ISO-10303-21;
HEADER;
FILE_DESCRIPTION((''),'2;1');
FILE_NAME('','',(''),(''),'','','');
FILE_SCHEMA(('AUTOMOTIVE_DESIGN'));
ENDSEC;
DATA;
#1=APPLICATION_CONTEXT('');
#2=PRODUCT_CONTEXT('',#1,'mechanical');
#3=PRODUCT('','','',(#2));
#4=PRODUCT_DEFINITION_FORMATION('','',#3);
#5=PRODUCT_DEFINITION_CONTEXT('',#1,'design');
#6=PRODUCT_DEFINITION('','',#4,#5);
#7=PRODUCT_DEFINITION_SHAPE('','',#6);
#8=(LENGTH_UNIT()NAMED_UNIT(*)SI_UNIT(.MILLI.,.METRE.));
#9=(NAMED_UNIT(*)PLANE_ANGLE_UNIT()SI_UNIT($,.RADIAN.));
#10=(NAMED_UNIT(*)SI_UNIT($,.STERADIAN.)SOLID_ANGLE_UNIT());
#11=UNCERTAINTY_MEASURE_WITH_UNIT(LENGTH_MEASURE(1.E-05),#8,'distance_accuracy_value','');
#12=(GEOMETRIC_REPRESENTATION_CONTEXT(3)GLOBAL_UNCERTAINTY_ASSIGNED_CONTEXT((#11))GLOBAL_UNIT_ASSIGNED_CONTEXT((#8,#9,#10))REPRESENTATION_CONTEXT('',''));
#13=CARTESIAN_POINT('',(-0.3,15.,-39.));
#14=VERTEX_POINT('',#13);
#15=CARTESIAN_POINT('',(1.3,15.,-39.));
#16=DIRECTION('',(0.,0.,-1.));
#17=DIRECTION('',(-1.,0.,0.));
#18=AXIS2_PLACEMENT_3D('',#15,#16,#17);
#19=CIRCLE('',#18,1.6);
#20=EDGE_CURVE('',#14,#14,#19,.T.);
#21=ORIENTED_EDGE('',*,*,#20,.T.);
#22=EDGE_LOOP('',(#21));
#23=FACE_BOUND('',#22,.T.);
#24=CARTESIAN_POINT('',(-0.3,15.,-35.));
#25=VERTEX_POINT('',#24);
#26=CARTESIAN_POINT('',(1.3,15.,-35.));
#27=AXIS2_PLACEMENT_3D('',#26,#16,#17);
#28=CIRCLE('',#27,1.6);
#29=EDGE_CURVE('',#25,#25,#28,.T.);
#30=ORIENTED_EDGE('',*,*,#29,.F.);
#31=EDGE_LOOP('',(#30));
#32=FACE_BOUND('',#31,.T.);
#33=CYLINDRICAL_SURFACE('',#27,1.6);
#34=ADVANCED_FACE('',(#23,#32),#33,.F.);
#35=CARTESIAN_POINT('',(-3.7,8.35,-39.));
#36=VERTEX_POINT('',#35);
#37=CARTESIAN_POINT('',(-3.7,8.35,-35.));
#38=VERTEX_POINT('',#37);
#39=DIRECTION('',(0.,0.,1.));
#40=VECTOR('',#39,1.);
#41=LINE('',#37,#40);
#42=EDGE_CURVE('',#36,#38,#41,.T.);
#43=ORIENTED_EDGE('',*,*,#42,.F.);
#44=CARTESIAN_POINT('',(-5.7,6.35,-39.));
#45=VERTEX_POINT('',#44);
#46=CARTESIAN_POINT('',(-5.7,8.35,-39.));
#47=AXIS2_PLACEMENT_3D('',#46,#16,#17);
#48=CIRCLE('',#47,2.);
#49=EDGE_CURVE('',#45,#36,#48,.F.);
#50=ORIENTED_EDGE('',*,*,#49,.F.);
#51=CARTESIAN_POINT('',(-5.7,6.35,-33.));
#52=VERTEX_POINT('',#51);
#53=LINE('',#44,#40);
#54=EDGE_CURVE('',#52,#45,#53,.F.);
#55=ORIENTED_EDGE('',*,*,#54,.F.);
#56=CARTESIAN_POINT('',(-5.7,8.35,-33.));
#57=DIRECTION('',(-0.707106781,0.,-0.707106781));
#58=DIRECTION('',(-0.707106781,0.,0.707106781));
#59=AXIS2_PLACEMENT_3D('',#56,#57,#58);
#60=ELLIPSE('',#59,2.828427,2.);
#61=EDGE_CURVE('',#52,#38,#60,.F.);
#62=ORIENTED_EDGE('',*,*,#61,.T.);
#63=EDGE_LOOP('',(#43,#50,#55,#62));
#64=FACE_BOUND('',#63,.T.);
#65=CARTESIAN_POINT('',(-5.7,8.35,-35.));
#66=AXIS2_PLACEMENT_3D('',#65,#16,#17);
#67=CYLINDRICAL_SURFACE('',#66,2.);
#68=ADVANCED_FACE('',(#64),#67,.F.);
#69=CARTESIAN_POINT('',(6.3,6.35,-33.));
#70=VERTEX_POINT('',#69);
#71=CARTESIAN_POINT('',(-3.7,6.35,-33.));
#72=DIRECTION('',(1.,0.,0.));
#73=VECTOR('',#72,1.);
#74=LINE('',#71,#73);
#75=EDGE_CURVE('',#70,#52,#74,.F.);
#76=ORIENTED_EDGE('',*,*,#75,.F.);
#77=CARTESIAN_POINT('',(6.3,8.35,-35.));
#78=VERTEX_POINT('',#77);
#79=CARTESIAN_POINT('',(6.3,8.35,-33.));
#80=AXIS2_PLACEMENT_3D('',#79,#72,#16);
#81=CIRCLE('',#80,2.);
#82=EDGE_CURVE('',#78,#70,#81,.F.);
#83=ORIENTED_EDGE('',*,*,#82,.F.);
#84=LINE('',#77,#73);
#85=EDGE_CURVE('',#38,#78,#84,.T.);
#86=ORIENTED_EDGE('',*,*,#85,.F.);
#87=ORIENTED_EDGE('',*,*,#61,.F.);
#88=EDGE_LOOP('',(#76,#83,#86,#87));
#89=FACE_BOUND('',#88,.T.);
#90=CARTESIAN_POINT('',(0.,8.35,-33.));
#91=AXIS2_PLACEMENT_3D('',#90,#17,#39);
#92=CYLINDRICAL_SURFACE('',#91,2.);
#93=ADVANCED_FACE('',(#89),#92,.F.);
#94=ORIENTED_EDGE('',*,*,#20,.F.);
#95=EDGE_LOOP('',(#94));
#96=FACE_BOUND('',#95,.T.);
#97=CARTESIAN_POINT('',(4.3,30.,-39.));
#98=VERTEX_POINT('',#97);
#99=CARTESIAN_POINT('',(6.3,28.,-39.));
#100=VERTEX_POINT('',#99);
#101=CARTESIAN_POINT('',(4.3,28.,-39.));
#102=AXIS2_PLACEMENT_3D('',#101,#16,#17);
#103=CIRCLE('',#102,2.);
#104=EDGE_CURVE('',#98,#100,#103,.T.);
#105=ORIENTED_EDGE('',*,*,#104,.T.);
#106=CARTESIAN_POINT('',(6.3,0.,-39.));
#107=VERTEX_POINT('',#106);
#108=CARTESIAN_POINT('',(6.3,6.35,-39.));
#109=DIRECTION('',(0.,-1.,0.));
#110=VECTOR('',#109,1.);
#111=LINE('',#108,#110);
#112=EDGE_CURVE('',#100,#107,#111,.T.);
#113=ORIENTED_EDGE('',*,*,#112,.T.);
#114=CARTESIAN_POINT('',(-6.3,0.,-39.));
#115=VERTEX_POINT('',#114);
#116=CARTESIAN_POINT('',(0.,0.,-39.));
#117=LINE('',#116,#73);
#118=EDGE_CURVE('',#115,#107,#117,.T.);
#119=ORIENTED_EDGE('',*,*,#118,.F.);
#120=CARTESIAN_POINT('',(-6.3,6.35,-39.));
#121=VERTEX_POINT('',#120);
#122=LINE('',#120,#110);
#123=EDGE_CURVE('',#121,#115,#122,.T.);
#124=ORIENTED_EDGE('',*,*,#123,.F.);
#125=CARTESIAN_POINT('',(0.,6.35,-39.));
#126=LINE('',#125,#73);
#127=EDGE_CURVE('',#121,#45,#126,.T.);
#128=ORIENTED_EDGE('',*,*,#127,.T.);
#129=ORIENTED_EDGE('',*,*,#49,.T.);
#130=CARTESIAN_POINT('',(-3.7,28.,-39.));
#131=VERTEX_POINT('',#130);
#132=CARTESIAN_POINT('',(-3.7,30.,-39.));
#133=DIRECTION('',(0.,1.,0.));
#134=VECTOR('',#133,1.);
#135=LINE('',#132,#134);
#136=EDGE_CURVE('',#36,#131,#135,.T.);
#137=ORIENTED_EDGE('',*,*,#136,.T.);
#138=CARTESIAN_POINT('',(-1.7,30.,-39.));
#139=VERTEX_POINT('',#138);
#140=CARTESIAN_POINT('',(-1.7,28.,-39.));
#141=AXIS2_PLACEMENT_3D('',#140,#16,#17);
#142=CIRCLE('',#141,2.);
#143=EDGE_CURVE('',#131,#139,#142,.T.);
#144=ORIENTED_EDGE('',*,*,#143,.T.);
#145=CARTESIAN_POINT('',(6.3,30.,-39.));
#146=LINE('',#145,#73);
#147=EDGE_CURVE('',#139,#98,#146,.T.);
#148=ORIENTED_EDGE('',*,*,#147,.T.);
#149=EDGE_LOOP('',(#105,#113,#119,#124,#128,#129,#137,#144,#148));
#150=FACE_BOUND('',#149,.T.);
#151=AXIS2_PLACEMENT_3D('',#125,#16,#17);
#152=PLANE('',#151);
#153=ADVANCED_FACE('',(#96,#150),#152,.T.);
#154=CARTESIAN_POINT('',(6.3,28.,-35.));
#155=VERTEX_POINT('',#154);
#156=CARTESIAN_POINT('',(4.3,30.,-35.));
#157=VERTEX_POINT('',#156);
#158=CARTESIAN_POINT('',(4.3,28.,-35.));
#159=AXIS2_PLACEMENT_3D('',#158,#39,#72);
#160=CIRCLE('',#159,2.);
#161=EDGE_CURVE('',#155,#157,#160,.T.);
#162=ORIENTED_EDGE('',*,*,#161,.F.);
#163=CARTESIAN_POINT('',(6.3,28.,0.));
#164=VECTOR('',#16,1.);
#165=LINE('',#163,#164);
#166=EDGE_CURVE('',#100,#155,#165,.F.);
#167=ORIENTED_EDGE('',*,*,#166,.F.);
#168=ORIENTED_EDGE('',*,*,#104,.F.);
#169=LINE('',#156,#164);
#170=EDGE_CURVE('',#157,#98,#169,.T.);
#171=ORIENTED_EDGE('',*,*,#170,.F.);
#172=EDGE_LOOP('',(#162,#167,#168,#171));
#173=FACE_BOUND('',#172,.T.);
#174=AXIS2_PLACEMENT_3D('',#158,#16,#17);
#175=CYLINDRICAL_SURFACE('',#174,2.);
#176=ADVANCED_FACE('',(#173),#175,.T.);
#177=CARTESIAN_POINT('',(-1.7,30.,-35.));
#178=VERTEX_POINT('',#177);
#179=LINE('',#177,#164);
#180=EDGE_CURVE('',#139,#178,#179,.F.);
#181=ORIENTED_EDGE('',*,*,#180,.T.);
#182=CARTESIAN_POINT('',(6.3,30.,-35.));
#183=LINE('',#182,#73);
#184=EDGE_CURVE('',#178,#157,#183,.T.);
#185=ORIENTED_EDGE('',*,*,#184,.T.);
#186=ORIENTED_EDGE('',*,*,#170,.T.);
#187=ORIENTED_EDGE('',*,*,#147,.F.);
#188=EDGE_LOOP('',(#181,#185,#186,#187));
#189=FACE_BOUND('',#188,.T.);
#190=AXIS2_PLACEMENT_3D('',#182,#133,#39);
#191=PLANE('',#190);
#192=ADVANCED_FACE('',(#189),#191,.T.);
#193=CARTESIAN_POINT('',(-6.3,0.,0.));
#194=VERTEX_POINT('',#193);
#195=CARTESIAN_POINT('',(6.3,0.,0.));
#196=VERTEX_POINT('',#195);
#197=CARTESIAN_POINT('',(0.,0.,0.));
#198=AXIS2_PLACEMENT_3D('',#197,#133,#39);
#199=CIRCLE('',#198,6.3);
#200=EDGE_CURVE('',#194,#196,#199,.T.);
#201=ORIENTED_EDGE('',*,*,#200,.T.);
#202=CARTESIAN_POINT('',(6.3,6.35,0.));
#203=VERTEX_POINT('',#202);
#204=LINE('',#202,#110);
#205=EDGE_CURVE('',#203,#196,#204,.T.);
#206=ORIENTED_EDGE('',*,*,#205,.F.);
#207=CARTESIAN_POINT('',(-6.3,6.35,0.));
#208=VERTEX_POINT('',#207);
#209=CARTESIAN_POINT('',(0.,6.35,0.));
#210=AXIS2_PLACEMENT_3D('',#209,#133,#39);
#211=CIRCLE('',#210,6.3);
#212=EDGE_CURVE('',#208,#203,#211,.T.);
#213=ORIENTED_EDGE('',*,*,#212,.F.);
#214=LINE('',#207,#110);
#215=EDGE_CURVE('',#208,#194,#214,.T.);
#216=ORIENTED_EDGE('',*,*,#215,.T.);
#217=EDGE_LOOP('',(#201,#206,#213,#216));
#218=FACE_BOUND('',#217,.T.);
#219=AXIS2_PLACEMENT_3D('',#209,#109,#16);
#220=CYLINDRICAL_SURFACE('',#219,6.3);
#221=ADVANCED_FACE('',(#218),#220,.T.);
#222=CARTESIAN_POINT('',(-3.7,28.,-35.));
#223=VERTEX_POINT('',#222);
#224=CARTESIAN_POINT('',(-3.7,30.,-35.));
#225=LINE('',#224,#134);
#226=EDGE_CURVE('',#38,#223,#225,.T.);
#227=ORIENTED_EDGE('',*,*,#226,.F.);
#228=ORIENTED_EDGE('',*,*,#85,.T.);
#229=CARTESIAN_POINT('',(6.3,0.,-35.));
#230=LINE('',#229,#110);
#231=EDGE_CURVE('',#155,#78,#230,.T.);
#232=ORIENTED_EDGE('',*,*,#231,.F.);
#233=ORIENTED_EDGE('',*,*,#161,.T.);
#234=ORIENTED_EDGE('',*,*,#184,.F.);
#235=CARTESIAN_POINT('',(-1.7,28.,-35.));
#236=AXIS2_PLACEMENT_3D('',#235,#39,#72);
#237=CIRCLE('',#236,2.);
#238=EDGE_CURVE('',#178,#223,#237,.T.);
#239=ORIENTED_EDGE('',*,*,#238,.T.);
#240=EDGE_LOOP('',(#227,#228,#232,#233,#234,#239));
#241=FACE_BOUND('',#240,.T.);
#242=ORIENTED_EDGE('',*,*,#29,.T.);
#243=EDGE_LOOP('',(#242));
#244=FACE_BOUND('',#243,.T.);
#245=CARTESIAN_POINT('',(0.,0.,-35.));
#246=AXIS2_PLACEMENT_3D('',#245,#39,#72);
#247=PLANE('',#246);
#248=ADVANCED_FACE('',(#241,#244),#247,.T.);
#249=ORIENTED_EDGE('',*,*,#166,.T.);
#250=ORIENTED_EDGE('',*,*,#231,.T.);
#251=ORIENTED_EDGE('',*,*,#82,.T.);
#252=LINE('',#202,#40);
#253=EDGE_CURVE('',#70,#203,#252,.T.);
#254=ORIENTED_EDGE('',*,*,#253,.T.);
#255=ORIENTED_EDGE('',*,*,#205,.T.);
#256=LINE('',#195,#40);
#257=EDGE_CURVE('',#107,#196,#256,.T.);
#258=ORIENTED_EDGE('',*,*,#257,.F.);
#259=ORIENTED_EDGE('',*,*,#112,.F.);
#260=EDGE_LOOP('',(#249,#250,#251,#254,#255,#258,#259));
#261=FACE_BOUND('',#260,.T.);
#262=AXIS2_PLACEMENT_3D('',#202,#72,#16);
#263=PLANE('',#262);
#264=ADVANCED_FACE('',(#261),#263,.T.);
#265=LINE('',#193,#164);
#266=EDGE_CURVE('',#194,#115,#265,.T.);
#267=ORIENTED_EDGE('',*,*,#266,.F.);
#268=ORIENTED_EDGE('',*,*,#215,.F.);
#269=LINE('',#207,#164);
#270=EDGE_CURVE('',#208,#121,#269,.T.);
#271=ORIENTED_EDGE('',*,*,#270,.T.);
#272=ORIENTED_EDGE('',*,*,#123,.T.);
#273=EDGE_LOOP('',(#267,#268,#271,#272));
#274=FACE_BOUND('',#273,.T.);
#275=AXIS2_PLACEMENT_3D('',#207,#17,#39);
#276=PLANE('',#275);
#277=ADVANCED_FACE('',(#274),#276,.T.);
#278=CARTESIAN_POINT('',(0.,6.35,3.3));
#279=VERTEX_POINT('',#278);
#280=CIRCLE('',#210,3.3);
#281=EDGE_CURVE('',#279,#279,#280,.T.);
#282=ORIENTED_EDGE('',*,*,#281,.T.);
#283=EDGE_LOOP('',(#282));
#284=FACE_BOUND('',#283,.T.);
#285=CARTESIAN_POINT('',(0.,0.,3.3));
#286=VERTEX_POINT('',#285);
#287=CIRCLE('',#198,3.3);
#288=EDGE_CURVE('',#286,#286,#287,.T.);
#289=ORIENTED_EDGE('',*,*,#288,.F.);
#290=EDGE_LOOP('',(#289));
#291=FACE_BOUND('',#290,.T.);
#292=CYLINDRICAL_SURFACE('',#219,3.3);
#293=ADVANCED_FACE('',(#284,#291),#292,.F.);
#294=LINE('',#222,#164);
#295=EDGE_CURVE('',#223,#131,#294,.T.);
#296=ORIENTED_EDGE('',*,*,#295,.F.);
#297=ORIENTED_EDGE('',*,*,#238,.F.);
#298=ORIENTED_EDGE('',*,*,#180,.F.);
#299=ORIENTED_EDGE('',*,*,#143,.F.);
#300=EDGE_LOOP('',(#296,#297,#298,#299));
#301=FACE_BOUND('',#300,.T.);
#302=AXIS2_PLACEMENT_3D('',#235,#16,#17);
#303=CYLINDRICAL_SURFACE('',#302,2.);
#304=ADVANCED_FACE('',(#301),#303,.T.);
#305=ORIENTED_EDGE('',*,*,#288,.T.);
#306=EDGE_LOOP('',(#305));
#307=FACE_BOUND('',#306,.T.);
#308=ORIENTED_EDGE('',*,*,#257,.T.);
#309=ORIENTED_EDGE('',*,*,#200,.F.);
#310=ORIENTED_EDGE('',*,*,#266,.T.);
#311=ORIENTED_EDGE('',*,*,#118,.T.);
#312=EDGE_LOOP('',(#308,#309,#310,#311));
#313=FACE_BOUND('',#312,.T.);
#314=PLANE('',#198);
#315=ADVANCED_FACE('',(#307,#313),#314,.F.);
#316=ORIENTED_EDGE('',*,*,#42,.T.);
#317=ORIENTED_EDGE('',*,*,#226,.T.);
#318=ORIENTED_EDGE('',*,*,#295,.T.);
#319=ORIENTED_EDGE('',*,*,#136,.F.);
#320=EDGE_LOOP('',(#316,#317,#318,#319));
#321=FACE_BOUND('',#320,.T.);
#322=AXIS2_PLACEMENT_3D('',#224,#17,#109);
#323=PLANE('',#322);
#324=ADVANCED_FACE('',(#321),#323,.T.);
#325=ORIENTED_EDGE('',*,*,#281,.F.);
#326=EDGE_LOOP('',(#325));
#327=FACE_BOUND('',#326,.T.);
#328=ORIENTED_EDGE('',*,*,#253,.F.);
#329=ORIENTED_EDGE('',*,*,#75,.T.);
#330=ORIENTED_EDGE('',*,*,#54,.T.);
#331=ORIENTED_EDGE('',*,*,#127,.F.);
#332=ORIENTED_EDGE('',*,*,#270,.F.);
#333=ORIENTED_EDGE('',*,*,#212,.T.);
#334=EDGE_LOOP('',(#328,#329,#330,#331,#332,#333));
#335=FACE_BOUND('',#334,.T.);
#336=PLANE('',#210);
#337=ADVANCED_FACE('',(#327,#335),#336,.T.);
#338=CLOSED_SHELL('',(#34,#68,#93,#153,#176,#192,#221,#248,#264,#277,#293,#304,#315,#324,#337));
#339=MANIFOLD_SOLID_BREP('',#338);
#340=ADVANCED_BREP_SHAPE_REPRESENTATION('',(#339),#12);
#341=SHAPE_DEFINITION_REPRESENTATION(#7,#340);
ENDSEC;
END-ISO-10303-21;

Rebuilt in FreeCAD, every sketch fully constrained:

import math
import FreeCAD as App
import Part
import Sketcher
Q = App.Units.Quantity


def edges_at(feature, points):
    """Names of the edges that pass closest to the given points."""
    edges = feature.Shape.Edges
    near = lambda p: min(range(len(edges)), key=lambda i: edges[i].distToShape(Part.Vertex(*p))[0])
    return sorted({f"Edge{near(p) + 1}" for p in points})


def add_polygon(sketch, points):
    """Adds a closed chain of lines whose ends are joined by coincident constraints."""
    first, n = sketch.GeometryCount, len(points)
    for a, b in zip(points, points[1:] + points[:1]):
        sketch.addGeometry(Part.LineSegment(App.Vector(*a, 0), App.Vector(*b, 0)), False)
    for i in range(n):
        sketch.addConstraint(Sketcher.Constraint("Coincident", first + i, 2, first + (i + 1) % n, 1))

doc = App.newDocument("Part")
params = doc.addObject("Spreadsheet::Sheet", "Params")
for row, (alias, value) in enumerate([
    ("sketch1_diameter", "6.6 mm"),
    ("sketch1_radius", "6.3 mm"),
    ("sketch1_height", "39 mm"),
    ("pad1_length", "6.35 mm"),
    ("sketch2_diameter", "3.2 mm"),
    ("sketch2_width", "10 mm"),
    ("sketch2_height", "30 mm"),
    ("pad2_length", "4 mm"),
    ("fillet_radius", "2 mm"),
], start=1):
    params.set(f"A{row}", alias)
    params.set(f"B{row}", "=" + value)
    params.setAlias(f"B{row}", alias)

body = doc.addObject("PartDesign::Body", "Body")

sketch1 = doc.addObject("Sketcher::SketchObject", "Sketch")
body.addObject(sketch1)
sketch1.AttachmentSupport = (doc.XZ_Plane, [""])
sketch1.MapMode = "FlatFace"
sketch1.addGeometry([
    Part.ArcOfCircle(Part.Circle(App.Vector(0, 0, 0), App.Vector(0, 0, 1), 6.3), math.radians(0), math.radians(180)),
    Part.LineSegment(App.Vector(6.3, 0, 0), App.Vector(6.3, -39, 0)),
    Part.LineSegment(App.Vector(6.3, -39, 0), App.Vector(-6.3, -39, 0)),
    Part.LineSegment(App.Vector(-6.3, -39, 0), App.Vector(-6.3, 0, 0)),
    Part.Circle(App.Vector(0, 0, 0), App.Vector(0, 0, 1), 3.3),
], False)
sketch1.addConstraint([
    Sketcher.Constraint("Tangent", 0, 1, 1, 1),
    Sketcher.Constraint("Coincident", 1, 2, 2, 1),
    Sketcher.Constraint("Coincident", 2, 2, 3, 1),
    Sketcher.Constraint("Tangent", 3, 2, 0, 2),
    Sketcher.Constraint("Vertical", 1),
    Sketcher.Constraint("Horizontal", 2),
    Sketcher.Constraint("Vertical", 3),
    Sketcher.Constraint("Coincident", 0, 3, -1, 1),
    Sketcher.Constraint("Coincident", 4, 3, -1, 1),
    Sketcher.Constraint("Diameter", 4, Q("6.6 mm")),
    Sketcher.Constraint("Radius", 0, Q("6.3 mm")),
    Sketcher.Constraint("DistanceY", 1, 2, 1, 1, Q("39 mm")),
])
sketch1.setExpression("Constraints[9]", "Params.sketch1_diameter")
sketch1.setExpression("Constraints[10]", "Params.sketch1_radius")
sketch1.setExpression("Constraints[11]", "Params.sketch1_height")
pad1 = doc.addObject("PartDesign::Pad", "Pad")
body.addObject(pad1)
pad1.Profile = sketch1
pad1.setExpression("Length", "Params.pad1_length")
pad1.Reversed = True

sketch2 = doc.addObject("Sketcher::SketchObject", "Sketch001")
body.addObject(sketch2)
sketch2.AttachmentSupport = (doc.XY_Plane, [""])
sketch2.MapMode = "FlatFace"
sketch2.AttachmentOffset = App.Placement(App.Vector(0, 0, -39), App.Rotation())
add_polygon(sketch2, [(6.3, 30), (6.3, 0), (-3.7, 0), (-3.7, 30)])
sketch2.addGeometry(Part.Circle(App.Vector(1.3, 15, 0), App.Vector(0, 0, 1), 1.6), False)
sketch2.addConstraint([
    Sketcher.Constraint("Vertical", 0),
    Sketcher.Constraint("Horizontal", 1),
    Sketcher.Constraint("Vertical", 2),
    Sketcher.Constraint("Horizontal", 3),
    Sketcher.Constraint("PointOnObject", 0, 2, -1),
    Sketcher.Constraint("Diameter", 4, Q("3.2 mm")),
    Sketcher.Constraint("DistanceX", 1, 2, 1, 1, Q("10 mm")),
    Sketcher.Constraint("DistanceY", 0, 2, 0, 1, Q("30 mm")),
    Sketcher.Constraint("DistanceY", -1, 1, 4, 3, Q("15 mm")),
    Sketcher.Constraint("DistanceX", 4, 3, 0, 2, Q("5 mm")),
    Sketcher.Constraint("DistanceX", -1, 1, 4, 3, Q("1.3 mm")),
])
sketch2.setExpression("Constraints[9]", "Params.sketch2_diameter")
sketch2.setExpression("Constraints[10]", "Params.sketch2_width")
sketch2.setExpression("Constraints[11]", "Params.sketch2_height")
pad2 = doc.addObject("PartDesign::Pad", "Pad001")
body.addObject(pad2)
pad2.Profile = sketch2
pad2.setExpression("Length", "Params.pad2_length")
doc.recompute()

fillet = doc.addObject("PartDesign::Fillet", "Fillet")
body.addObject(fillet)
fillet.Base = (pad2, edges_at(pad2, [
    (6.3, 30, -37),
    (-3.7, 6.35, -37),
    (-3.7, 30, -37),
    (1.3, 6.35, -35),
]))
fillet.setExpression("Radius", "Params.fillet_radius")

doc.recompute()
